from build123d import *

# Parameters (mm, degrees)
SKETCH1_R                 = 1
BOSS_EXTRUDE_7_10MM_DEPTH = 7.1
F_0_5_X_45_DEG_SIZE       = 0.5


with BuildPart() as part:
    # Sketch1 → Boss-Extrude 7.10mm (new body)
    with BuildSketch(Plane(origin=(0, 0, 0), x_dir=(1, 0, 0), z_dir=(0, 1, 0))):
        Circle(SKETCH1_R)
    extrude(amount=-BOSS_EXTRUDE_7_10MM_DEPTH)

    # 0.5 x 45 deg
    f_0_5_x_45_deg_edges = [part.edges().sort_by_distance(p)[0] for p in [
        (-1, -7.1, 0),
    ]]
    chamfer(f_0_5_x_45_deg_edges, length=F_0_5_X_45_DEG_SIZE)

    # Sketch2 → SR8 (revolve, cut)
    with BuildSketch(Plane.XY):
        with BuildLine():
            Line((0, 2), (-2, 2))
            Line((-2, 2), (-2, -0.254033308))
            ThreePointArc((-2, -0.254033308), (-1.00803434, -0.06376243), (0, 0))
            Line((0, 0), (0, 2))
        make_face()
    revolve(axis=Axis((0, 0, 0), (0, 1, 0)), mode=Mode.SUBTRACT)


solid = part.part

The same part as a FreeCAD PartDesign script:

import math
import FreeCAD as App
import Part
import Sketcher

V = App.Vector


def edges_at(feature, points):
    """Names of the edges that pass closest to the given points."""
    edges = feature.Shape.Edges
    near = lambda p: min(range(len(edges)), key=lambda i: edges[i].distToShape(Part.Vertex(*p))[0])
    return sorted({f"Edge{near(p) + 1}" for p in points})

doc = App.newDocument("Part")
params = doc.addObject("Spreadsheet::Sheet", "Params")
for row, (alias, value) in enumerate([
    ("sketch1_diameter", "2 mm"),
    ("pad1_length", "7.1 mm"),
    ("chamfer_size", "0.5 mm"),
    ("sketch2_radius", "8 mm"),
    ("sketch2_width", "2 mm"),
    ("groove_angle", "360 deg"),
], start=1):
    params.set(f"A{row}", alias)
    params.set(f"B{row}", "=" + value)
    params.setAlias(f"B{row}", alias)

body = doc.addObject("PartDesign::Body", "Body")

# Sketch on XZ plane
sketch1 = body.newObject("Sketcher::SketchObject", "Sketch")
sketch1.AttachmentSupport = (doc.getObject("XZ_Plane"), [""])
sketch1.MapMode = "FlatFace"
sketch1.addGeometry(Part.Circle(V(0, 0, 0), V(0, 0, 1), 1), False)
sketch1.addConstraint(Sketcher.Constraint("Coincident", 0, 3, -1, 1))
sketch1.addConstraint(Sketcher.Constraint("Diameter", 0, 2.0))
sketch1.setExpression("Constraints[1]", "Params.sketch1_diameter")
pad1 = body.newObject("PartDesign::Pad", "Pad")
pad1.Profile = sketch1
pad1.setExpression("Length", "Params.pad1_length")
doc.recompute()

chamfer = body.newObject("PartDesign::Chamfer", "Chamfer")
chamfer.Base = (pad1, edges_at(pad1, [(-1, -7.1, 0)]))
chamfer.setExpression("Size", "Params.chamfer_size")

# Sketch on XY plane
sketch2 = body.newObject("Sketcher::SketchObject", "Sketch001")
sketch2.AttachmentSupport = (doc.getObject("XY_Plane"), [""])
sketch2.MapMode = "FlatFace"
sketch2.addGeometry(Part.LineSegment(V(0, 2, 0), V(-2, 2, 0)), False)
sketch2.addGeometry(Part.LineSegment(V(-2, 2, 0), V(-2, -0.254033, 0)), False)
sketch2.addGeometry(Part.ArcOfCircle(Part.Circle(V(0, -8, 0), V(0, 0, 1), 8), math.radians(90), math.radians(104.477512)), False)
sketch2.addGeometry(Part.LineSegment(V(0, 0, 0), V(0, 2, 0)), False)
sketch2.addConstraint(Sketcher.Constraint("Coincident", 0, 2, 1, 1))
sketch2.addConstraint(Sketcher.Constraint("Coincident", 1, 2, 2, 2))
sketch2.addConstraint(Sketcher.Constraint("Coincident", 2, 1, 3, 1))
sketch2.addConstraint(Sketcher.Constraint("Coincident", 3, 2, 0, 1))
sketch2.addConstraint(Sketcher.Constraint("Horizontal", 0))
sketch2.addConstraint(Sketcher.Constraint("Vertical", 1))
sketch2.addConstraint(Sketcher.Constraint("Vertical", 3))
sketch2.addConstraint(Sketcher.Constraint("Coincident", 2, 1, -1, 1))
sketch2.addConstraint(Sketcher.Constraint("PointOnObject", 2, 3, -2))
sketch2.addConstraint(Sketcher.Constraint("Equal", 0, 3))
sketch2.addConstraint(Sketcher.Constraint("Radius", 2, 8.0))
sketch2.addConstraint(Sketcher.Constraint("DistanceX", 0, 2, 0, 1, 2.0))
sketch2.setExpression("Constraints[10]", "Params.sketch2_radius")
sketch2.setExpression("Constraints[11]", "Params.sketch2_width")
groove = body.newObject("PartDesign::Groove", "Groove")
groove.Profile = sketch2
groove.ReferenceAxis = (sketch2, ["V_Axis"])
groove.setExpression("Angle", "Params.groove_angle")

doc.recompute()
